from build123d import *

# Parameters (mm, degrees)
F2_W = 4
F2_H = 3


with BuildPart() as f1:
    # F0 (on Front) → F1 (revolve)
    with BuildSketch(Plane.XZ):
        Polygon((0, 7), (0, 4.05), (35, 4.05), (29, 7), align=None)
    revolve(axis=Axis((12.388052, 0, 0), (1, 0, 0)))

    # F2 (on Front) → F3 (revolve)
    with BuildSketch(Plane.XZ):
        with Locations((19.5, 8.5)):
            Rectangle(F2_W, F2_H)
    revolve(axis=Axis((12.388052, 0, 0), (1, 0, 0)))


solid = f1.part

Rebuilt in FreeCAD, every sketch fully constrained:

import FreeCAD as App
import Part
import Sketcher
from FreeCAD import Vector

doc = App.newDocument("Part")
body = doc.addObject("PartDesign::Body", "Body")

# Sketch on XZ plane
sketch1 = body.newObject("Sketcher::SketchObject", "Sketch")
sketch1.AttachmentSupport = (doc.getObject("XZ_Plane"), [""])
sketch1.MapMode = "FlatFace"
sketch1.addGeometry(Part.LineSegment(Vector(0, 7, 0), Vector(0, 4, 0)), False)
sketch1.addGeometry(Part.LineSegment(Vector(0, 4, 0), Vector(35, 4, 0)), False)
sketch1.addGeometry(Part.LineSegment(Vector(35, 4, 0), Vector(29, 7, 0)), False)
sketch1.addGeometry(Part.LineSegment(Vector(29, 7, 0), Vector(0, 7, 0)), False)
sketch1.addConstraint(Sketcher.Constraint("Coincident", 0, 2, 1, 1))
sketch1.addConstraint(Sketcher.Constraint("Coincident", 1, 2, 2, 1))
sketch1.addConstraint(Sketcher.Constraint("Coincident", 2, 2, 3, 1))
sketch1.addConstraint(Sketcher.Constraint("Coincident", 3, 2, 0, 1))
sketch1.addConstraint(Sketcher.Constraint("Vertical", 0))
sketch1.addConstraint(Sketcher.Constraint("Horizontal", 1))
sketch1.addConstraint(Sketcher.Constraint("Horizontal", 3))
sketch1.addConstraint(Sketcher.Constraint("PointOnObject", 0, 2, -2))
sketch1.addConstraint(Sketcher.Constraint("DistanceX", 1, 1, 1, 2, 35.0))
sketch1.addConstraint(Sketcher.Constraint("DistanceX", 3, 2, 3, 1, 29.0))
sketch1.addConstraint(Sketcher.Constraint("DistanceY", -1, 1, 2, 2, 7.0))
sketch1.addConstraint(Sketcher.Constraint("DistanceY", 0, 2, 0, 1, 2.95))
revolution = body.newObject("PartDesign::Revolution", "Revolution")
revolution.Profile = sketch1
revolution.ReferenceAxis = (sketch1, ["H_Axis"])
revolution.Angle = 360

# Sketch on XZ plane
sketch2 = body.newObject("Sketcher::SketchObject", "Sketch001")
sketch2.AttachmentSupport = (doc.getObject("XZ_Plane"), [""])
sketch2.MapMode = "FlatFace"
sketch2.addGeometry(Part.LineSegment(Vector(17.5, 10, 0), Vector(17.5, 7, 0)), False)
sketch2.addGeometry(Part.LineSegment(Vector(17.5, 7, 0), Vector(21.5, 7, 0)), False)
sketch2.addGeometry(Part.LineSegment(Vector(21.5, 7, 0), Vector(21.5, 10, 0)), False)
sketch2.addGeometry(Part.LineSegment(Vector(21.5, 10, 0), Vector(17.5, 10, 0)), False)
sketch2.addConstraint(Sketcher.Constraint("Coincident", 0, 2, 1, 1))
sketch2.addConstraint(Sketcher.Constraint("Coincident", 1, 2, 2, 1))
sketch2.addConstraint(Sketcher.Constraint("Coincident", 2, 2, 3, 1))
sketch2.addConstraint(Sketcher.Constraint("Coincident", 3, 2, 0, 1))
sketch2.addConstraint(Sketcher.Constraint("Vertical", 0))
sketch2.addConstraint(Sketcher.Constraint("Horizontal", 1))
sketch2.addConstraint(Sketcher.Constraint("Vertical", 2))
sketch2.addConstraint(Sketcher.Constraint("Horizontal", 3))
sketch2.addConstraint(Sketcher.Constraint("DistanceX", 1, 1, 1, 2, 4.0))
sketch2.addConstraint(Sketcher.Constraint("DistanceY", 0, 2, 0, 1, 3.0))
sketch2.addConstraint(Sketcher.Constraint("DistanceY", -1, 1, 0, 2, 7.0))
sketch2.addConstraint(Sketcher.Constraint("DistanceX", -1, 1, 0, 2, 17.5))
revolution2 = body.newObject("PartDesign::Revolution", "Revolution001")
revolution2.Profile = sketch2
revolution2.ReferenceAxis = (sketch2, ["H_Axis"])
revolution2.Angle = 360

doc.recompute()
